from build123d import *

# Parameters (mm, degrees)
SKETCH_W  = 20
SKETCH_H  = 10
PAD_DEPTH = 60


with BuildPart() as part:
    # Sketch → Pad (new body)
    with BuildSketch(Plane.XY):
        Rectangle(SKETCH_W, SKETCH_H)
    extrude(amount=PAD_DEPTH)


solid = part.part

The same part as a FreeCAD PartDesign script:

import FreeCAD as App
import Part
import Sketcher

V = App.Vector
Q = App.Units.Quantity

doc = App.newDocument("Part")
body = doc.addObject("PartDesign::Body", "Body")

sketch1 = doc.addObject("Sketcher::SketchObject", "Sketch")
body.addObject(sketch1)
sketch1.AttachmentSupport = (doc.XY_Plane, [""])
sketch1.MapMode = "FlatFace"
sketch1.addGeometry([
    Part.LineSegment(V(-10, 5, 0), V(-10, -5, 0)),
    Part.LineSegment(V(-10, -5, 0), V(10, -5, 0)),
    Part.LineSegment(V(10, -5, 0), V(10, 5, 0)),
    Part.LineSegment(V(10, 5, 0), V(-10, 5, 0)),
], False)
sketch1.addConstraint([
    Sketcher.Constraint("Coincident", 0, 2, 1, 1),
    Sketcher.Constraint("Coincident", 1, 2, 2, 1),
    Sketcher.Constraint("Coincident", 2, 2, 3, 1),
    Sketcher.Constraint("Coincident", 3, 2, 0, 1),
    Sketcher.Constraint("Vertical", 0),
    Sketcher.Constraint("Horizontal", 1),
    Sketcher.Constraint("Vertical", 2),
    Sketcher.Constraint("Horizontal", 3),
    Sketcher.Constraint("Symmetric", 0, 2, 2, 2, -1, 1),
    Sketcher.Constraint("DistanceX", 1, 1, 1, 2, Q("20 mm")),
    Sketcher.Constraint("DistanceY", 0, 2, 0, 1, Q("10 mm")),
])
pad1 = doc.addObject("PartDesign::Pad", "Pad")
body.addObject(pad1)
pad1.Profile = sketch1
pad1.Length = 60

doc.recompute()
